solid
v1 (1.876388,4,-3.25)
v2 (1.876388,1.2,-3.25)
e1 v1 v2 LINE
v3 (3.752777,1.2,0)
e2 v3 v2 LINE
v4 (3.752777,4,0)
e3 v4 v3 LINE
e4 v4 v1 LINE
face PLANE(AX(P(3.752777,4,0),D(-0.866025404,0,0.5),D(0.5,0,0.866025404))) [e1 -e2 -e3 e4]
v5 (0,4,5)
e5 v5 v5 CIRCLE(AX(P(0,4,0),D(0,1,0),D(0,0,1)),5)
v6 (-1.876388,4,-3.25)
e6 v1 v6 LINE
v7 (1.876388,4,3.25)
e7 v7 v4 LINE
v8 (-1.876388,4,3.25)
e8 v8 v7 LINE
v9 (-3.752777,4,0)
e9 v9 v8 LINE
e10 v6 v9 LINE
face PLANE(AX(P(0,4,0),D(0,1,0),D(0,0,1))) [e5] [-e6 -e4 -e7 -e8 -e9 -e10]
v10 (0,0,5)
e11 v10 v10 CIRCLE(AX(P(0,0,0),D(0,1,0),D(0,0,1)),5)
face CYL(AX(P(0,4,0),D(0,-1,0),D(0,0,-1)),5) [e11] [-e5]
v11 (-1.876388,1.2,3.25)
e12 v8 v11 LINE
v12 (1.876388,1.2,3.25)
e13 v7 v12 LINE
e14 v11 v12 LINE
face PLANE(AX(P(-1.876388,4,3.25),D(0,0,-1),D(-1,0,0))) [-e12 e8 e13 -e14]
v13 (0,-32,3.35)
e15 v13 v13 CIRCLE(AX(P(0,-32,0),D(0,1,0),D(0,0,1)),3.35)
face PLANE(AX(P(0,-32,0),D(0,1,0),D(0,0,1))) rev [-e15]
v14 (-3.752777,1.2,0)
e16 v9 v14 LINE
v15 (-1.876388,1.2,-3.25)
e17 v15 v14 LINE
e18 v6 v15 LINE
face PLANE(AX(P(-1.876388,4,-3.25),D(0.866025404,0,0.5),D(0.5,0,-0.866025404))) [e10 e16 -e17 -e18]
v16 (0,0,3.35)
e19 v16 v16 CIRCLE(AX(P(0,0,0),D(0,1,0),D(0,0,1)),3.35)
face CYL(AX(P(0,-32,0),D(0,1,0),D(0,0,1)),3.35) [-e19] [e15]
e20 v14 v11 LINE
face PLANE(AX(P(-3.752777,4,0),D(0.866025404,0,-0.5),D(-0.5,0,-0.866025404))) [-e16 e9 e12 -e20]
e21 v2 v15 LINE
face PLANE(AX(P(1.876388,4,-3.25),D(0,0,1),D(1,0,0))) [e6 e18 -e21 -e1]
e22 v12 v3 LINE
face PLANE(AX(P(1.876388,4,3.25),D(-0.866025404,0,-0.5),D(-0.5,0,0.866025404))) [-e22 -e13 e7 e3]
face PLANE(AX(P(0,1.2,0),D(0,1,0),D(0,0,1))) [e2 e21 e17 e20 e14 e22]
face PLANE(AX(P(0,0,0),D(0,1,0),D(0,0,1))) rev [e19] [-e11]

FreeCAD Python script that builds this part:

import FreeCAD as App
import Part
import Sketcher
from FreeCAD import Vector
Q = App.Units.Quantity


def add_polygon(sketch, points):
    """Adds a closed chain of lines whose ends are joined by coincident constraints."""
    first, n = sketch.GeometryCount, len(points)
    for a, b in zip(points, points[1:] + points[:1]):
        sketch.addGeometry(Part.LineSegment(App.Vector(*a, 0), App.Vector(*b, 0)), False)
    for i in range(n):
        sketch.addConstraint(Sketcher.Constraint("Coincident", first + i, 2, first + (i + 1) % n, 1))

doc = App.newDocument("Part")
body = doc.addObject("PartDesign::Body", "Body")

sketch1 = body.newObject("Sketcher::SketchObject", "Sketch")
sketch1.AttachmentSupport = (doc.getObject("XZ_Plane"), [""])
sketch1.MapMode = "FlatFace"
sketch1.addGeometry(Part.Circle(Vector(0, 0, 0), Vector(0, 0, 1), 5), False)
sketch1.addConstraint(Sketcher.Constraint("Coincident", 0, 3, -1, 1))
sketch1.addConstraint(Sketcher.Constraint("Diameter", 0, 10.0))
pad1 = body.newObject("PartDesign::Pad", "Pad")
pad1.Profile = sketch1
pad1.Length = 4
pad1.Reversed = True

sketch2 = body.newObject("Sketcher::SketchObject", "Sketch001")
sketch2.AttachmentSupport = (doc.getObject("XZ_Plane"), [""])
sketch2.MapMode = "FlatFace"
sketch2.addGeometry(Part.Circle(Vector(0, 0, 0), Vector(0, 0, 1), 3.4), False)
sketch2.addConstraint(Sketcher.Constraint("Coincident", 0, 3, -1, 1))
sketch2.addConstraint(Sketcher.Constraint("Diameter", 0, 6.7))
pad2 = body.newObject("PartDesign::Pad", "Pad001")
pad2.Profile = sketch2
pad2.Length = 32

sketch3 = body.newObject("Sketcher::SketchObject", "Sketch002")
sketch3.AttachmentSupport = (doc.getObject("XZ_Plane"), [""])
sketch3.MapMode = "FlatFace"
sketch3.AttachmentOffset = App.Placement(Vector(0, 0, -3.7), App.Rotation())
add_polygon(sketch3, [(3.8, 0), (1.9, -3.2), (-1.9, -3.2), (-3.8, 0), (-1.9, 3.2), (1.9, 3.2)])
sketch3.addConstraint(Sketcher.Constraint("Horizontal", 1))
sketch3.addConstraint(Sketcher.Constraint("Horizontal", 4))
sketch3.addConstraint(Sketcher.Constraint("Symmetric", 0, 2, 3, 2, -1, 1))
sketch3.addConstraint(Sketcher.Constraint("Symmetric", 2, 2, 5, 2, -1, 1))
sketch3.addConstraint(Sketcher.Constraint("PointOnObject", 2, 2, -1))
sketch3.addConstraint(Sketcher.Constraint("Parallel", 2, 5))
sketch3.addConstraint(Sketcher.Constraint("Vertical", 1, 2, 3, 2))
sketch3.addConstraint(Sketcher.Constraint("Angle", 0, Q("-120 deg")))
sketch3.addConstraint(Sketcher.Constraint("DistanceY", 1, 2, 3, 2, 6.5))
sketch3.addConstraint(Sketcher.Constraint("DistanceX", 1, 2, 1, 1, 3.752777))
pocket1 = body.newObject("PartDesign::Pocket", "Pocket")
pocket1.Profile = sketch3
pocket1.Type = "TwoLengths"
pocket1.Length = 1.3
pocket1.Length2 = 2.5

doc.recompute()
